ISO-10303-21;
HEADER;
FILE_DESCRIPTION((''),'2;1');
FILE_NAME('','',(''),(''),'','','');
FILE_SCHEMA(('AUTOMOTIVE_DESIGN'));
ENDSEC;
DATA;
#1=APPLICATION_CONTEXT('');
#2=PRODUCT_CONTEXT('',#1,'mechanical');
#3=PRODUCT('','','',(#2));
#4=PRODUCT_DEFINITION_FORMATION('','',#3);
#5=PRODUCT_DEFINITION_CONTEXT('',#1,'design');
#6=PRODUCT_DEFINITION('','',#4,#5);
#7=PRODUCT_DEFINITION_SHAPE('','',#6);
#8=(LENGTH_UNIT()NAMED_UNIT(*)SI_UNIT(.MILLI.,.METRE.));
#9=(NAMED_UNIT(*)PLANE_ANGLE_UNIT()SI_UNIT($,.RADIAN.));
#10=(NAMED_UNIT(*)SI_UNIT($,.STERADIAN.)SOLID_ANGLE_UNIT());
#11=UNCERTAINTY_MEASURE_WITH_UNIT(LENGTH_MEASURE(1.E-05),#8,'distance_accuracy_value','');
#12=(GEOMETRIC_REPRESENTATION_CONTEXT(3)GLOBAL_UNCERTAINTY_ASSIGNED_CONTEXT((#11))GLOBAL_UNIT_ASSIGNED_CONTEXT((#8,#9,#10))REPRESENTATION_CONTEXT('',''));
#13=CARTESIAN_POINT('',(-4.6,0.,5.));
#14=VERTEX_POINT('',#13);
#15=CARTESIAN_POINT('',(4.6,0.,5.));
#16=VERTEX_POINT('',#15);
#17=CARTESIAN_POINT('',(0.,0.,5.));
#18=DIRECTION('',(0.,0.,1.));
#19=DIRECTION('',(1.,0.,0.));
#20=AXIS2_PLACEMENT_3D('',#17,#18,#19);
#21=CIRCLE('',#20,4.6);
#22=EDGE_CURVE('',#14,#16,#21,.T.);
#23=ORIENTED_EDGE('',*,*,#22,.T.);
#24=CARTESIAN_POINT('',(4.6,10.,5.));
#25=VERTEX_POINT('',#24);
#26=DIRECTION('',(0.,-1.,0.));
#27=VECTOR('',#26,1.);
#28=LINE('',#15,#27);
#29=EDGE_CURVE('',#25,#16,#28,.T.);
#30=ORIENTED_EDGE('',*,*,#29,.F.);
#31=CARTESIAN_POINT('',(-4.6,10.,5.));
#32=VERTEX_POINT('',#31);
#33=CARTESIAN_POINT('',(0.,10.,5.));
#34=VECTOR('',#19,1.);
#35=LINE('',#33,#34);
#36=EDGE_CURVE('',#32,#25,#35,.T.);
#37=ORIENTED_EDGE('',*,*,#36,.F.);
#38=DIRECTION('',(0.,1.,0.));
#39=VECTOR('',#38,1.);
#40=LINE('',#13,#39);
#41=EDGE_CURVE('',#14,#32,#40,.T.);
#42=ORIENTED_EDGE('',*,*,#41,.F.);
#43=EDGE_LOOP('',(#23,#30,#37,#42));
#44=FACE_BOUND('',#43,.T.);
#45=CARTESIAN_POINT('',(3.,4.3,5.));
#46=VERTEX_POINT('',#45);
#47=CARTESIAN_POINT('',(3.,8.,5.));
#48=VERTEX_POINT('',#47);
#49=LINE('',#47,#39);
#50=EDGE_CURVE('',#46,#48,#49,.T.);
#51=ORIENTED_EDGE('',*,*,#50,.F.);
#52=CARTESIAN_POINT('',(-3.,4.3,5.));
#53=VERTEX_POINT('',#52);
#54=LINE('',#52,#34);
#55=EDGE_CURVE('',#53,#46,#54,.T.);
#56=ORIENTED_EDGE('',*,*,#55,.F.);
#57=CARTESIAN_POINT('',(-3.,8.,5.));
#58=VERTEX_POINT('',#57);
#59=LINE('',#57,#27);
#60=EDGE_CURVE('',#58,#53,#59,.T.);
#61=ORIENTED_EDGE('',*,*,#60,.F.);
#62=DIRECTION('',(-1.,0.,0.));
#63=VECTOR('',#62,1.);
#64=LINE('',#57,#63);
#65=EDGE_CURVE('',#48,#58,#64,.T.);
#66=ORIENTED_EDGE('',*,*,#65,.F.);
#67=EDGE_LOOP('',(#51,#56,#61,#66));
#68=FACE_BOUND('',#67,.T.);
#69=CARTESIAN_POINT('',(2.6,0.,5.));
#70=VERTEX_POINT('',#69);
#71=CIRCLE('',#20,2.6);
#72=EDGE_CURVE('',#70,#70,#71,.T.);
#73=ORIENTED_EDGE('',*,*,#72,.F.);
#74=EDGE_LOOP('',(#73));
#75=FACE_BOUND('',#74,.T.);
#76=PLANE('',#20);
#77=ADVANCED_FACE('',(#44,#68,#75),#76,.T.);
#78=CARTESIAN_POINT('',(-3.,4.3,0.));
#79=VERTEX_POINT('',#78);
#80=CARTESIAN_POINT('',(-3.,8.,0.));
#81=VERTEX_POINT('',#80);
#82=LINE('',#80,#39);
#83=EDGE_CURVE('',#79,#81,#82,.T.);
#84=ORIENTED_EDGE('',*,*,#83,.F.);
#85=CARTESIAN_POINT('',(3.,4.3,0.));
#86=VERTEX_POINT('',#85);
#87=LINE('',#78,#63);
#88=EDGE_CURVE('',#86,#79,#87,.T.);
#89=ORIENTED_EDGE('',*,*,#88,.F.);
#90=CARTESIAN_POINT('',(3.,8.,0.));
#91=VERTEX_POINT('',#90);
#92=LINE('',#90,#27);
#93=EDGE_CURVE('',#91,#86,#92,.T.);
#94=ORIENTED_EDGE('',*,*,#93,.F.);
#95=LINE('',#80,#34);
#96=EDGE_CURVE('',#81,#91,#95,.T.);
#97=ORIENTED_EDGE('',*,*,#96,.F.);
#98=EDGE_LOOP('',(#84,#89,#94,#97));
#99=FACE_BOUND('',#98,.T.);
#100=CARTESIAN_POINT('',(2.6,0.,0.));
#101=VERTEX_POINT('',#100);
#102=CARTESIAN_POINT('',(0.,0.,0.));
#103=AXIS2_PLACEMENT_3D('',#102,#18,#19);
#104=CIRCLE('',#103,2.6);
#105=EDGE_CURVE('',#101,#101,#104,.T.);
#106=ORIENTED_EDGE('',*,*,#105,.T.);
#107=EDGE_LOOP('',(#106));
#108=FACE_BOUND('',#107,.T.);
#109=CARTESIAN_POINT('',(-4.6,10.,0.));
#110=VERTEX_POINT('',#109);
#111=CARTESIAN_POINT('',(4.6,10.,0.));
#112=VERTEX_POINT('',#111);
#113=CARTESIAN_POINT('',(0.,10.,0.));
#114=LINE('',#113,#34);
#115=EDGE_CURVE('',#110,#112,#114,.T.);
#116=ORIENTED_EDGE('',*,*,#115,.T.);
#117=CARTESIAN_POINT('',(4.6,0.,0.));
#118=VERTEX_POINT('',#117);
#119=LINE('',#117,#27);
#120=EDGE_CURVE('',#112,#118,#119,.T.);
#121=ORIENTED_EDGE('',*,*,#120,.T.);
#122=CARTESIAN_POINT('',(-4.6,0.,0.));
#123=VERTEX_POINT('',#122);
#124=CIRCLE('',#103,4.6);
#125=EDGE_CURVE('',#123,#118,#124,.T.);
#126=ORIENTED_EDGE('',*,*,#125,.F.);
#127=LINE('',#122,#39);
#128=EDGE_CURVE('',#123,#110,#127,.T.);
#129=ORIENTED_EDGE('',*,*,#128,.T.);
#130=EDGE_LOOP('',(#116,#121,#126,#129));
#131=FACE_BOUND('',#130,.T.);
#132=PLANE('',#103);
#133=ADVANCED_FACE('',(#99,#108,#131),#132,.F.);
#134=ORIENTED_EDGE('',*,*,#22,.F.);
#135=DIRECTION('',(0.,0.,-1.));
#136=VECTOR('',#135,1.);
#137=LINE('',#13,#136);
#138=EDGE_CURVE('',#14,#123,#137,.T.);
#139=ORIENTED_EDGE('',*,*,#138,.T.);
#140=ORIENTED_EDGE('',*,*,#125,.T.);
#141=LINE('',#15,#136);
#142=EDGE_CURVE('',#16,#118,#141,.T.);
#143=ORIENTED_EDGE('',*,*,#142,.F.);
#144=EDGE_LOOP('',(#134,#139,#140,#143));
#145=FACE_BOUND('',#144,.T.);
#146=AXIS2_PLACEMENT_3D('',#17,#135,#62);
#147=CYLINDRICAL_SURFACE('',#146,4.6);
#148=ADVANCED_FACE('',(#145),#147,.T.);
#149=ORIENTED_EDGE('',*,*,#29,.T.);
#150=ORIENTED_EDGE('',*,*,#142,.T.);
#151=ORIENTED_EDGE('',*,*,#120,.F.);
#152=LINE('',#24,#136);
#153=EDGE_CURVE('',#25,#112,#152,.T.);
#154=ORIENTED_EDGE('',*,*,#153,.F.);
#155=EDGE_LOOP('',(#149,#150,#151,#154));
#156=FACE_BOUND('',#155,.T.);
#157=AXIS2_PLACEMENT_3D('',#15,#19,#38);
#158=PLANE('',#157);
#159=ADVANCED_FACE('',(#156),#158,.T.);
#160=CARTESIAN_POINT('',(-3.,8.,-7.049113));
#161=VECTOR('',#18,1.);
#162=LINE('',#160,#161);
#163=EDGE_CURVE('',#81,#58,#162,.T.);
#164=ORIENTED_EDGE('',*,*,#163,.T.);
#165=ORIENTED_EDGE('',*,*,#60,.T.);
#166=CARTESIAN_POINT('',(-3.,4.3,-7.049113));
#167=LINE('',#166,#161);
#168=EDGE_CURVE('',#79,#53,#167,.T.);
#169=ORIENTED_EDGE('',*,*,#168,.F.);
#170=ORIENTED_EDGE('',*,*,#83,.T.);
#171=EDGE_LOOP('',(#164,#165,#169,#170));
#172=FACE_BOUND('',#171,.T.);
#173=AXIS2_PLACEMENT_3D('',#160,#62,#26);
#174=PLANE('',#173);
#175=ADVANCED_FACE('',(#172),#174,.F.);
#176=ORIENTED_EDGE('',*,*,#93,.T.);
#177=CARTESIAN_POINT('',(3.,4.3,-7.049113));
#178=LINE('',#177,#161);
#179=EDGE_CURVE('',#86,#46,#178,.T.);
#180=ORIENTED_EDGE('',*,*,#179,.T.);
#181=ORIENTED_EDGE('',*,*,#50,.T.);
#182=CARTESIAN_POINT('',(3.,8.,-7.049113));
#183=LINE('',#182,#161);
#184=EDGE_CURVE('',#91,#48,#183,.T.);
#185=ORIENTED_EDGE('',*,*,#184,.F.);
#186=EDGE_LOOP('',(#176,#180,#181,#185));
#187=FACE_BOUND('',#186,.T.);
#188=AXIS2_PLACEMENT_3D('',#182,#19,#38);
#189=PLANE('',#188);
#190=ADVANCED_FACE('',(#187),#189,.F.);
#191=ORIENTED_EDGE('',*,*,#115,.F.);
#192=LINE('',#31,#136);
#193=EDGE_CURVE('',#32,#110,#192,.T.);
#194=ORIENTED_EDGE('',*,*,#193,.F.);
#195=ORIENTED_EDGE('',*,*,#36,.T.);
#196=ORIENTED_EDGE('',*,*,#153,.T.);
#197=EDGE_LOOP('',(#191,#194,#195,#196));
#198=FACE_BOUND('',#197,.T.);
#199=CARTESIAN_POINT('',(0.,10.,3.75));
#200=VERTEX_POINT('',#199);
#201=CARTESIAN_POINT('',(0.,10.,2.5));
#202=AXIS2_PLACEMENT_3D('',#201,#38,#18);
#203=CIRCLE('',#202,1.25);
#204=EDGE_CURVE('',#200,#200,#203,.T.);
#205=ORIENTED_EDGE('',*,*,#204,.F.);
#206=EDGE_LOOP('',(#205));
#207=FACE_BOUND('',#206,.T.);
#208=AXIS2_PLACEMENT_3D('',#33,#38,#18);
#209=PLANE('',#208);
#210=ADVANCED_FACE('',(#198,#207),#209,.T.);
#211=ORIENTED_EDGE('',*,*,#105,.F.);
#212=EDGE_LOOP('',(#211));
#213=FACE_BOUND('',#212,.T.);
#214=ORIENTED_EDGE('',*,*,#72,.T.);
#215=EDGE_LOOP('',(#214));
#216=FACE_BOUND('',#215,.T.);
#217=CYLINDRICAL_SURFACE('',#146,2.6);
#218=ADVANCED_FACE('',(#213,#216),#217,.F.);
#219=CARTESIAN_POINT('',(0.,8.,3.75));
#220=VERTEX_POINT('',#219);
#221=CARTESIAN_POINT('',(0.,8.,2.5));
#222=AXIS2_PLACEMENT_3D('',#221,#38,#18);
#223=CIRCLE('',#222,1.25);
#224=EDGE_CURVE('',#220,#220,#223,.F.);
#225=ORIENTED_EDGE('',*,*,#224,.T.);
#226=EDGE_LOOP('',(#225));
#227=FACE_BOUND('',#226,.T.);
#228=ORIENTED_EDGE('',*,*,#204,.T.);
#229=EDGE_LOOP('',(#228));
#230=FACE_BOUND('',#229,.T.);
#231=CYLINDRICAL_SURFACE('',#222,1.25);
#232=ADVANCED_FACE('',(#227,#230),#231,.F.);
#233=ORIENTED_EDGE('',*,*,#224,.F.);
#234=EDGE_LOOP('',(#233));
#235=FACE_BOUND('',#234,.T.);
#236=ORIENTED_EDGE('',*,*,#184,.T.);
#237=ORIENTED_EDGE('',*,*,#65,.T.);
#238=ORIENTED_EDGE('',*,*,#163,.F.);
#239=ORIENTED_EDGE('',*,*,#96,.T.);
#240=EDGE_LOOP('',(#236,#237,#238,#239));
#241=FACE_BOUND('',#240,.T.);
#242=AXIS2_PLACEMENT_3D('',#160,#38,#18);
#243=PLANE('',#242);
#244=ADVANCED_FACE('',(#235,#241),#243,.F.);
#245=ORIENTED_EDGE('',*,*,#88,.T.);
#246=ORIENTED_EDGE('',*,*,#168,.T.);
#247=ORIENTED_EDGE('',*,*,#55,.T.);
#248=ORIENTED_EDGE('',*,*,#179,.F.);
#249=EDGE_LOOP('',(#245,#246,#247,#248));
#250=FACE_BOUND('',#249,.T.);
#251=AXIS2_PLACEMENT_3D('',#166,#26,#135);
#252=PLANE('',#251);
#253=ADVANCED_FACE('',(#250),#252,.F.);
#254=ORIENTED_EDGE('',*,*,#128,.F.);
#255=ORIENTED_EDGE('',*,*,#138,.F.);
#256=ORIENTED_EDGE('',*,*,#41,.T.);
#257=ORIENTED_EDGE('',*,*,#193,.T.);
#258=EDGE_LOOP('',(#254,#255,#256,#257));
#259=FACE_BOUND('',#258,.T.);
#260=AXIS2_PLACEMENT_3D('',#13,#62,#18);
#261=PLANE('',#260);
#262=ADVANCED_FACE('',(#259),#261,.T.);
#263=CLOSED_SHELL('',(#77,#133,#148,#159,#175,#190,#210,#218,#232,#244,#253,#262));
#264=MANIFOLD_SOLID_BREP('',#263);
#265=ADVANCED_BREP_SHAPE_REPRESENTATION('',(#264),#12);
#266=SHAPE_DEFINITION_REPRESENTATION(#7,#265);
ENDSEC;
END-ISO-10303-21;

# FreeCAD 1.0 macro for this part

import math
import FreeCAD as App
import Part
import Sketcher
from FreeCAD import Vector
Q = App.Units.Quantity


def add_polygon(sketch, points):
    """Adds a closed chain of lines whose ends are joined by coincident constraints."""
    first, n = sketch.GeometryCount, len(points)
    for a, b in zip(points, points[1:] + points[:1]):
        sketch.addGeometry(Part.LineSegment(App.Vector(*a, 0), App.Vector(*b, 0)), False)
    for i in range(n):
        sketch.addConstraint(Sketcher.Constraint("Coincident", first + i, 2, first + (i + 1) % n, 1))

doc = App.newDocument("Part")
params = doc.addObject("Spreadsheet::Sheet", "Params")
for row, (alias, value) in enumerate([
    ("sketch1_diameter", "5.2 mm"),
    ("sketch1_radius", "4.6 mm"),
    ("sketch1_height", "10 mm"),
    ("pad1_length", "5 mm"),
    ("sketch2_diameter", "2.5 mm"),
    ("pocket1_length", "2 mm"),
    ("sketch3_width", "6 mm"),
    ("sketch3_height", "3.7 mm"),
    ("pocket2_length", "5 mm"),
], start=1):
    params.set(f"A{row}", alias)
    params.set(f"B{row}", "=" + value)
    params.setAlias(f"B{row}", alias)

body = doc.addObject("PartDesign::Body", "Body")

# Sketch on XY plane
sketch1 = body.newObject("Sketcher::SketchObject", "Sketch")
sketch1.AttachmentSupport = (doc.getObject("XY_Plane"), [""])
sketch1.MapMode = "FlatFace"
sketch1.addGeometry([
    Part.LineSegment(Vector(-4.6, 10, 0), Vector(-4.6, 0, 0)),  # 0
    Part.ArcOfCircle(Part.Circle(Vector(0, 0, 0), Vector(0, 0, 1), 4.6), math.radians(180), math.radians(360)),  # 1
    Part.LineSegment(Vector(4.6, 0, 0), Vector(4.6, 10, 0)),  # 2
    Part.LineSegment(Vector(4.6, 10, 0), Vector(-4.6, 10, 0)),  # 3
    Part.Circle(Vector(0, 0, 0), Vector(0, 0, 1), 2.6),  # 4
], False)
sketch1.addConstraint([
    Sketcher.Constraint("Tangent", 0, 2, 1, 1),
    Sketcher.Constraint("Tangent", 1, 2, 2, 1),
    Sketcher.Constraint("Coincident", 2, 2, 3, 1),
    Sketcher.Constraint("Coincident", 3, 2, 0, 1),
    Sketcher.Constraint("Vertical", 0),
    Sketcher.Constraint("Vertical", 2),
    Sketcher.Constraint("Horizontal", 3),
    Sketcher.Constraint("Coincident", 1, 3, -1, 1),
    Sketcher.Constraint("Coincident", 4, 3, -1, 1),
    Sketcher.Constraint("Diameter", 4, Q("5.2 mm")),
    Sketcher.Constraint("Radius", 1, Q("4.6 mm")),
    Sketcher.Constraint("DistanceY", 0, 2, 0, 1, Q("10 mm")),
])
sketch1.setExpression("Constraints[9]", "Params.sketch1_diameter")
sketch1.setExpression("Constraints[10]", "Params.sketch1_radius")
sketch1.setExpression("Constraints[11]", "Params.sketch1_height")
pad1 = body.newObject("PartDesign::Pad", "Pad")
pad1.Profile = sketch1
pad1.setExpression("Length", "Params.pad1_length")

# Sketch on XZ plane
sketch2 = body.newObject("Sketcher::SketchObject", "Sketch001")
sketch2.AttachmentSupport = (doc.getObject("XZ_Plane"), [""])
sketch2.MapMode = "FlatFace"
sketch2.AttachmentOffset = App.Placement(Vector(0, 0, -10), App.Rotation())
sketch2.addGeometry(Part.Circle(Vector(0, 2.5, 0), Vector(0, 0, 1), 1.25), False)
sketch2.addConstraint([
    Sketcher.Constraint("PointOnObject", 0, 3, -2),
    Sketcher.Constraint("Diameter", 0, Q("2.5 mm")),
    Sketcher.Constraint("DistanceY", -1, 1, 0, 3, Q("2.5 mm")),
])
sketch2.setExpression("Constraints[1]", "Params.sketch2_diameter")
pocket1 = body.newObject("PartDesign::Pocket", "Pocket")
pocket1.Profile = sketch2
pocket1.setExpression("Length", "Params.pocket1_length")
pocket1.Reversed = True

# Sketch on XY plane
sketch3 = body.newObject("Sketcher::SketchObject", "Sketch002")
sketch3.AttachmentSupport = (doc.getObject("XY_Plane"), [""])
sketch3.MapMode = "FlatFace"
sketch3.AttachmentOffset = App.Placement(Vector(0, 0, 5), App.Rotation())
add_polygon(sketch3, [(-3, 8), (-3, 4.3), (3, 4.3), (3, 8)])  # lines 0-3
sketch3.addConstraint([
    Sketcher.Constraint("Vertical", 0),
    Sketcher.Constraint("Horizontal", 1),
    Sketcher.Constraint("Vertical", 2),
    Sketcher.Constraint("Horizontal", 3),
    Sketcher.Constraint("DistanceX", 1, 1, 1, 2, Q("6 mm")),
    Sketcher.Constraint("DistanceY", 0, 2, 0, 1, Q("3.7 mm")),
    Sketcher.Constraint("DistanceX", 0, 2, -1, 1, Q("3 mm")),
    Sketcher.Constraint("DistanceY", -1, 1, 2, 2, Q("8 mm")),
])
sketch3.setExpression("Constraints[8]", "Params.sketch3_width")
sketch3.setExpression("Constraints[9]", "Params.sketch3_height")
pocket2 = body.newObject("PartDesign::Pocket", "Pocket001")
pocket2.Profile = sketch3
pocket2.setExpression("Length", "Params.pocket2_length")

doc.recompute()
